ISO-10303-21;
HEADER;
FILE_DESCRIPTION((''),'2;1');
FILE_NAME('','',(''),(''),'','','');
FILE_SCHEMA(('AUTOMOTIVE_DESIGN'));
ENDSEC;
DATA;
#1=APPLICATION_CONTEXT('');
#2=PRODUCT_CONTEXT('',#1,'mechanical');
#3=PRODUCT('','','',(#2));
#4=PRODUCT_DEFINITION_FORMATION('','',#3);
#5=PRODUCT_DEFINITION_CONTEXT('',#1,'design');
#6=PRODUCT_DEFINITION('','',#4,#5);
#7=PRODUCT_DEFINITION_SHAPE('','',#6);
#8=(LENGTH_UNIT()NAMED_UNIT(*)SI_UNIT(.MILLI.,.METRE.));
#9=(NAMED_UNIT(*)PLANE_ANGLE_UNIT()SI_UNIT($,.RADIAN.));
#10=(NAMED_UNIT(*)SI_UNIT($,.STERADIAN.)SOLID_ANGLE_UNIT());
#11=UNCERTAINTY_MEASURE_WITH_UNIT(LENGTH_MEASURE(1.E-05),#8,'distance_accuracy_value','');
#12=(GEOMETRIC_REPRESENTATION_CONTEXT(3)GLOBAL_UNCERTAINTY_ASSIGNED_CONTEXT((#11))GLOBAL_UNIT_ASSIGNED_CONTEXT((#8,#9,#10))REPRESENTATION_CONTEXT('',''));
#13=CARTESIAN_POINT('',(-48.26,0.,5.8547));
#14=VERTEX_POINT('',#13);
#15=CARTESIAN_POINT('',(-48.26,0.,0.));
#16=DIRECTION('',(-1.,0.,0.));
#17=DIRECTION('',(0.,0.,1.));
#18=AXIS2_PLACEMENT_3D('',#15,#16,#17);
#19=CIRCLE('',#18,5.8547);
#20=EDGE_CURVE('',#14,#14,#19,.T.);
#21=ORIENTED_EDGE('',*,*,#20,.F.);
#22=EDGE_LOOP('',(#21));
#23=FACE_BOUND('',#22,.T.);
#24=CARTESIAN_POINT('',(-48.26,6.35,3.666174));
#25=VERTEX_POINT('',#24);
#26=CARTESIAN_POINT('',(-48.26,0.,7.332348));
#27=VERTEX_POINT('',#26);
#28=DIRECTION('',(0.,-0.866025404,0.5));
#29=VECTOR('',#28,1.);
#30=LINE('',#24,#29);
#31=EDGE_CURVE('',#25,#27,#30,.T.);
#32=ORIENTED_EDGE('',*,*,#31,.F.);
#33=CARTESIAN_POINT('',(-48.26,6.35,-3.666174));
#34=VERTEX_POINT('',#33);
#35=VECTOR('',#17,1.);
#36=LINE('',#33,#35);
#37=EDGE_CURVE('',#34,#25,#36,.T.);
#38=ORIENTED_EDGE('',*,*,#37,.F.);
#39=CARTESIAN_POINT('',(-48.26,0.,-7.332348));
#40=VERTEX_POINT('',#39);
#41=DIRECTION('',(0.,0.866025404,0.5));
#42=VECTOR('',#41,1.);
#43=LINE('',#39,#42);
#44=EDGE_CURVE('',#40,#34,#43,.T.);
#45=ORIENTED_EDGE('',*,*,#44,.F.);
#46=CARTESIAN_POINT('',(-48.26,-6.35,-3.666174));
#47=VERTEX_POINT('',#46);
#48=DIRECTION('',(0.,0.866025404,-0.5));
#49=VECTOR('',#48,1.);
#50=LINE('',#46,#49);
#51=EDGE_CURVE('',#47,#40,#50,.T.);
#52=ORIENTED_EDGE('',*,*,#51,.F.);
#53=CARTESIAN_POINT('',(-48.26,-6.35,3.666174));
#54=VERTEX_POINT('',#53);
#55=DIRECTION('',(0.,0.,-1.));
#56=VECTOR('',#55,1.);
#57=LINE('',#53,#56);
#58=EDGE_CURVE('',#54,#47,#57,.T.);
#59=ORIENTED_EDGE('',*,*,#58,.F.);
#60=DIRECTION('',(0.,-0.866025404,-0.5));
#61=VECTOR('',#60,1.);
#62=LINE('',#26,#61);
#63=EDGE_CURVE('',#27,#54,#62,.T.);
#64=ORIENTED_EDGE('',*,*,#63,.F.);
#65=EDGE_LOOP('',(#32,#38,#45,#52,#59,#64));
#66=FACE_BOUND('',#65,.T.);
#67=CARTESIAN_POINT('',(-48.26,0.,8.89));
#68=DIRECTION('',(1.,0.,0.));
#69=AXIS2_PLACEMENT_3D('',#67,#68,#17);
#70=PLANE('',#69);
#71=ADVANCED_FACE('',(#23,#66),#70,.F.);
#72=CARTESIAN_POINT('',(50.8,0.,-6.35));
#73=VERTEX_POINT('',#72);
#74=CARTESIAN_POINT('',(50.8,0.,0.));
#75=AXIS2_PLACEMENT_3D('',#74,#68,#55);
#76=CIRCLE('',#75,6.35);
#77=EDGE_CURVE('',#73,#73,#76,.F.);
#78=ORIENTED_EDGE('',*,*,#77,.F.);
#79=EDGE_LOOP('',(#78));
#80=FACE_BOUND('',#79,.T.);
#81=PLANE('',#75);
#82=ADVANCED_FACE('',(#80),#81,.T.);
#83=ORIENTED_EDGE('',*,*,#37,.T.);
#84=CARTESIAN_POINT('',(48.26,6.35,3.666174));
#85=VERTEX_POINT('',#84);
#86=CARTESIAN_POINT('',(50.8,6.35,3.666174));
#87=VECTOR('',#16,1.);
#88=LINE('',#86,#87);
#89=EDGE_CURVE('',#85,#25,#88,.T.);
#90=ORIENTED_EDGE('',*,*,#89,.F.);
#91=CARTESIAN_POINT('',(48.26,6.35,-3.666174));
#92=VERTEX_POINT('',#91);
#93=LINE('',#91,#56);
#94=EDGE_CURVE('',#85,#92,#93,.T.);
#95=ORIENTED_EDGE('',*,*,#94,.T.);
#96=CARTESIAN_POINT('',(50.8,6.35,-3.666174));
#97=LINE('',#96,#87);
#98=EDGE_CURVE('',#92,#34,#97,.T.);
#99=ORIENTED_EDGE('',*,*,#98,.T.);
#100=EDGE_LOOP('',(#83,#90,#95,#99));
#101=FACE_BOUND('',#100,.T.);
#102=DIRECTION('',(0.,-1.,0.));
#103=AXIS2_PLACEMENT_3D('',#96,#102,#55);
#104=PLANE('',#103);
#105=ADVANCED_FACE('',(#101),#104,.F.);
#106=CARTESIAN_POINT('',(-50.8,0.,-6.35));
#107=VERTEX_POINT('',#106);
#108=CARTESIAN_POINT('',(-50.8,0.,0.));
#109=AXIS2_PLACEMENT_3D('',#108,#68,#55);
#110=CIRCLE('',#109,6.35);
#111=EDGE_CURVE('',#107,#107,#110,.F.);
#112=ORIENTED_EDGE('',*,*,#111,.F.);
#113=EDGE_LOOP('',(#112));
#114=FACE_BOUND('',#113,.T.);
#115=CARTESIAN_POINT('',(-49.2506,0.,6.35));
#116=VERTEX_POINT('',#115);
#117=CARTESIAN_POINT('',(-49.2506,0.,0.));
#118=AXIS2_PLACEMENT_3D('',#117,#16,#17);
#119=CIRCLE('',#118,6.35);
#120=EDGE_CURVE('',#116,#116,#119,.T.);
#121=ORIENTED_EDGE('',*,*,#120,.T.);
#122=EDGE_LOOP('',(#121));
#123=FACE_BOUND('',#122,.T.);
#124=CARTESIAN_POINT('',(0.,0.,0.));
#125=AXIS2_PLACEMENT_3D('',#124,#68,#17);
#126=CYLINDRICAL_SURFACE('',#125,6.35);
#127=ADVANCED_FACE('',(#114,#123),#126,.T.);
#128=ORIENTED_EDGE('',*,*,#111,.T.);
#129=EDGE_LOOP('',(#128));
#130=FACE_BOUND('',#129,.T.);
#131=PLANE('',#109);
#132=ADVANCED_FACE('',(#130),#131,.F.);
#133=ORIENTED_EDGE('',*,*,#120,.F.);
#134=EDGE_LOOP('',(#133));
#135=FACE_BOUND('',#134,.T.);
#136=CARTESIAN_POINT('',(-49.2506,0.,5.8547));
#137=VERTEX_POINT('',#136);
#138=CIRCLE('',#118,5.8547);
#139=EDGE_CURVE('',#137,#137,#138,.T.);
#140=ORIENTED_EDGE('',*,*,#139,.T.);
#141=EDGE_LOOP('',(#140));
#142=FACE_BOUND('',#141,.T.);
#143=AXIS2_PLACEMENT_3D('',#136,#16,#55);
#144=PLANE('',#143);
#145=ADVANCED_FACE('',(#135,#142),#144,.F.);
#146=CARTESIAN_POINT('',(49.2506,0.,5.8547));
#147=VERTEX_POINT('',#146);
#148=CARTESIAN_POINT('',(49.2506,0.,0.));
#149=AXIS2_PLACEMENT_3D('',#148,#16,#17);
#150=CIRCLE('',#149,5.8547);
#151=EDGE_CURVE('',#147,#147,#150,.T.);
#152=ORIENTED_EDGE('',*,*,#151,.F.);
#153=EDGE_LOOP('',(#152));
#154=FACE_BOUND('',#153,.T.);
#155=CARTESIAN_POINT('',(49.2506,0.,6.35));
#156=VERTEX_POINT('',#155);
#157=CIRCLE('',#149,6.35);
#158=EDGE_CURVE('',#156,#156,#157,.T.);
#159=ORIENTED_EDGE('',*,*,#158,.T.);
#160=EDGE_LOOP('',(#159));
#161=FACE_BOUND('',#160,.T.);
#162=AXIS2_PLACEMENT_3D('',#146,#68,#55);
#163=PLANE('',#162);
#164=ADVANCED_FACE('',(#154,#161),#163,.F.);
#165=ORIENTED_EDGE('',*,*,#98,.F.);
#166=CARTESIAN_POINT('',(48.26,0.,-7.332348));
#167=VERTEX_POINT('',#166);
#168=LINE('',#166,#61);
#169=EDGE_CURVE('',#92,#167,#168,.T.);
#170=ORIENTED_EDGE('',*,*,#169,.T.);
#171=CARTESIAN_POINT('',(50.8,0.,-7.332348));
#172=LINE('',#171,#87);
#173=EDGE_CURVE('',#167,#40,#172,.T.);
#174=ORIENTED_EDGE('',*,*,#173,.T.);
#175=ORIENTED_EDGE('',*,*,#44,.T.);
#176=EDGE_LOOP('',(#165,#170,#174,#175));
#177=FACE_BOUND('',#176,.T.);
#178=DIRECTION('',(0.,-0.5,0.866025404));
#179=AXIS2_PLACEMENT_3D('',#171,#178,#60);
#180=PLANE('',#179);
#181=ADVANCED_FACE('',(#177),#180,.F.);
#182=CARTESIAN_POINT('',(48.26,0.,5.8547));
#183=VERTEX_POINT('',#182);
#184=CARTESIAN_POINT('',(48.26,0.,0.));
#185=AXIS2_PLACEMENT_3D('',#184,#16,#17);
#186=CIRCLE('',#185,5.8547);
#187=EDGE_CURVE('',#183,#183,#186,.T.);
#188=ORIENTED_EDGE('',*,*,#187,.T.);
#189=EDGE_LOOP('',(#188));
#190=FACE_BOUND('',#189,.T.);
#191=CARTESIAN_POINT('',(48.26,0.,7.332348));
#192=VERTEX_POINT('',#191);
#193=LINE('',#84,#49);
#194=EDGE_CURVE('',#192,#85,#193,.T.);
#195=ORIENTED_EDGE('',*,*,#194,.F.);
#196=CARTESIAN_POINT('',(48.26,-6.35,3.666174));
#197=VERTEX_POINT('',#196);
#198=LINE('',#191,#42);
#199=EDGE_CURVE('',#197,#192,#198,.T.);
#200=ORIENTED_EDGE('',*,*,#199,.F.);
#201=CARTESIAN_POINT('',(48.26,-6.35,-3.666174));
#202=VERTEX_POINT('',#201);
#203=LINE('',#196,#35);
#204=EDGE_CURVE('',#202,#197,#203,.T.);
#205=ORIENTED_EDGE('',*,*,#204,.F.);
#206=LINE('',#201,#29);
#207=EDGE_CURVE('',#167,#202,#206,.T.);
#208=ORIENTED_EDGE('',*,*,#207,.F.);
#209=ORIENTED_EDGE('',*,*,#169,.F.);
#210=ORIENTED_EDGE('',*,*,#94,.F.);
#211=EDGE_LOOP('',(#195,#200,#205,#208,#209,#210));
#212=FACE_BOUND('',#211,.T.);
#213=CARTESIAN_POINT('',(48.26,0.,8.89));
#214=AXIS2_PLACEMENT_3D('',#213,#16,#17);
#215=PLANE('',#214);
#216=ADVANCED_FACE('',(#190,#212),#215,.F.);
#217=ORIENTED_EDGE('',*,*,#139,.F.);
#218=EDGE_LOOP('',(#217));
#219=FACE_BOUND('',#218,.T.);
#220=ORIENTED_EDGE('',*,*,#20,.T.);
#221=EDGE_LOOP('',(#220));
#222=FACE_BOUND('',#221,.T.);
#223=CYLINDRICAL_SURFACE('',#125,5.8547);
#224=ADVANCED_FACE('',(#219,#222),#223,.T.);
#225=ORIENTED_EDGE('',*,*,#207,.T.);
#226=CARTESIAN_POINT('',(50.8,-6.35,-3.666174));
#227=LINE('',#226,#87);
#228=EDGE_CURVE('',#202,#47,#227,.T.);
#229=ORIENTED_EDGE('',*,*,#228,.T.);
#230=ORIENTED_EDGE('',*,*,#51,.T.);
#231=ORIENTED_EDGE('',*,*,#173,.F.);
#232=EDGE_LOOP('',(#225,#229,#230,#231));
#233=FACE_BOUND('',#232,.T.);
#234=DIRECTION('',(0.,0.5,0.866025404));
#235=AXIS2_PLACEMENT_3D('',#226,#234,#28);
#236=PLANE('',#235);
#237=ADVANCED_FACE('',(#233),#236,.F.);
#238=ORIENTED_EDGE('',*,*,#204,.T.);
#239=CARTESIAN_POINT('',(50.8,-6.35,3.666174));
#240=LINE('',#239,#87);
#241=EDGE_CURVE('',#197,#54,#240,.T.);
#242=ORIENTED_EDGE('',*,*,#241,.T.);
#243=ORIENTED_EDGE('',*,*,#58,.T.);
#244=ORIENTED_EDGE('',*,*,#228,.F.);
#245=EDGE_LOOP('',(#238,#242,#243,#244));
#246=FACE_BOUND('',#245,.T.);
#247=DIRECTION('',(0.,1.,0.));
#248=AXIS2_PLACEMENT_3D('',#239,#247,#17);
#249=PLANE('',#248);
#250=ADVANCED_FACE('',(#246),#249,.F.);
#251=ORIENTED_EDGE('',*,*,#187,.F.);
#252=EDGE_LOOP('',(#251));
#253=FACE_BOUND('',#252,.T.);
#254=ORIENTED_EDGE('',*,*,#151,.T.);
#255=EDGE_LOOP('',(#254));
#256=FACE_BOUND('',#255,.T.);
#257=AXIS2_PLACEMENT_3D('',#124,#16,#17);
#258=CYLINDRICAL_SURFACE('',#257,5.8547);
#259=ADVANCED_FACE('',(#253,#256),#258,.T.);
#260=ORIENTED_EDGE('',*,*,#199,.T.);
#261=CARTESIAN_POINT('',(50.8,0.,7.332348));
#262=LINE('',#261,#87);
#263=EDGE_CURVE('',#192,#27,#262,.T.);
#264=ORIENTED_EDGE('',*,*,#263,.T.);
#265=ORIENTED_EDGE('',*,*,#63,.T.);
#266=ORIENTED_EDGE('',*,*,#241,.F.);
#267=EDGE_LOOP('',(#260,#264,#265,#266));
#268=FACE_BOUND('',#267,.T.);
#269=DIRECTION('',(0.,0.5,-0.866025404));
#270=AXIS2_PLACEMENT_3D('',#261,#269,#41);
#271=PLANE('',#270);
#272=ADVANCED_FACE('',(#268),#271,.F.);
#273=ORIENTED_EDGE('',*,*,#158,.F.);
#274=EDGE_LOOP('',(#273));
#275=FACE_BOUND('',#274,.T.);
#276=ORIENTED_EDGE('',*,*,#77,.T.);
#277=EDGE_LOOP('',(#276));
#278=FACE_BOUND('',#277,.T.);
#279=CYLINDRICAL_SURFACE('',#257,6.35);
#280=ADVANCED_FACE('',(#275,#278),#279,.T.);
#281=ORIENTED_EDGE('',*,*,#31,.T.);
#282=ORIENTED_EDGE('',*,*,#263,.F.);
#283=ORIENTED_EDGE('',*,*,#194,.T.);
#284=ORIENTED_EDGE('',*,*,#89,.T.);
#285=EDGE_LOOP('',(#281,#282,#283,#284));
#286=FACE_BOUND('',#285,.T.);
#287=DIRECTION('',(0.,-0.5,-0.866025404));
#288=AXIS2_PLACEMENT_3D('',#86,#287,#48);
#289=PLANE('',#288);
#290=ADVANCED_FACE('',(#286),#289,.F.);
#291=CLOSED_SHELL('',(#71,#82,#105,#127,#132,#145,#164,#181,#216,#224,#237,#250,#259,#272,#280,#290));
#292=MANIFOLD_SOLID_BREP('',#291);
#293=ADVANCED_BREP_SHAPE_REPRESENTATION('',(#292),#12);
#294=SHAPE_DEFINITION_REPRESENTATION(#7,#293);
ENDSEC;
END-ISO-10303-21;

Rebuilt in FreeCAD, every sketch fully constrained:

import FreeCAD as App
import Part
import Sketcher
from FreeCAD import Vector
Q = App.Units.Quantity


def add_polygon(sketch, points):
    """Adds a closed chain of lines whose ends are joined by coincident constraints."""
    first, n = sketch.GeometryCount, len(points)
    for a, b in zip(points, points[1:] + points[:1]):
        sketch.addGeometry(Part.LineSegment(App.Vector(*a, 0), App.Vector(*b, 0)), False)
    for i in range(n):
        sketch.addConstraint(Sketcher.Constraint("Coincident", first + i, 2, first + (i + 1) % n, 1))

doc = App.newDocument("Part")
body = doc.addObject("PartDesign::Body", "Body")

sketch1 = body.newObject("Sketcher::SketchObject", "Sketch")
sketch1.AttachmentSupport = (doc.getObject("YZ_Plane"), [""])
sketch1.MapMode = "FlatFace"
add_polygon(sketch1, [(0, -7.332348), (6.35, -3.666174), (6.35, 3.666174), (0, 7.332348), (-6.35, 3.666174), (-6.35, -3.666174)])
sketch1.addConstraint([
    Sketcher.Constraint("Vertical", 1),
    Sketcher.Constraint("Vertical", 4),
    Sketcher.Constraint("Symmetric", 0, 2, 3, 2, -1, 1),
    Sketcher.Constraint("Symmetric", 2, 2, 5, 2, -1, 1),
    Sketcher.Constraint("PointOnObject", 2, 2, -2),
    Sketcher.Constraint("Parallel", 2, 5),
    Sketcher.Constraint("Horizontal", 1, 2, 3, 2),
    Sketcher.Constraint("Angle", 0, Q("30 deg")),
    Sketcher.Constraint("DistanceX", 3, 2, 1, 2, Q("0.5 in")),
    Sketcher.Constraint("DistanceY", 1, 1, 1, 2, Q("7.332348 mm")),
])
pad1 = body.newObject("PartDesign::Pad", "Pad")
pad1.Profile = sketch1
pad1.Length = Q("4 in")
pad1.Midplane = True

sketch2 = body.newObject("Sketcher::SketchObject", "Sketch001")
sketch2.AttachmentSupport = (doc.getObject("XZ_Plane"), [""])
sketch2.MapMode = "FlatFace"
add_polygon(sketch2, [(49.2506, 5.8547), (48.26, 5.8547), (48.26, 8.89), (50.8, 8.89), (50.8, 6.35), (49.2506, 6.35)])
sketch2.addConstraint([
    Sketcher.Constraint("Horizontal", 0),
    Sketcher.Constraint("Vertical", 1),
    Sketcher.Constraint("Horizontal", 2),
    Sketcher.Constraint("Vertical", 3),
    Sketcher.Constraint("Horizontal", 4),
    Sketcher.Constraint("Vertical", 5),
    Sketcher.Constraint("Equal", 2, 3),
    Sketcher.Constraint("DistanceX", 2, 1, 2, 2, Q("0.1 in")),
    Sketcher.Constraint("DistanceX", -1, 1, 2, 2, Q("2 in")),
    Sketcher.Constraint("DistanceX", 0, 2, 0, 1, Q("0.039 in")),
    Sketcher.Constraint("DistanceY", -1, 1, 1, 2, Q("0.35 in")),
    Sketcher.Constraint("DistanceY", 1, 1, 1, 2, Q("0.1195 in")),
])
groove = body.newObject("PartDesign::Groove", "Groove")
groove.Profile = sketch2
groove.ReferenceAxis = (sketch2, ["H_Axis"])
groove.Angle = 360
doc.recompute()

mirrored = body.newObject("PartDesign::Mirrored", "Mirrored")
mirrored.Originals = [groove]
mirrored.MirrorPlane = (doc.getObject("YZ_Plane"), [""])
body.Tip = mirrored

doc.recompute()
